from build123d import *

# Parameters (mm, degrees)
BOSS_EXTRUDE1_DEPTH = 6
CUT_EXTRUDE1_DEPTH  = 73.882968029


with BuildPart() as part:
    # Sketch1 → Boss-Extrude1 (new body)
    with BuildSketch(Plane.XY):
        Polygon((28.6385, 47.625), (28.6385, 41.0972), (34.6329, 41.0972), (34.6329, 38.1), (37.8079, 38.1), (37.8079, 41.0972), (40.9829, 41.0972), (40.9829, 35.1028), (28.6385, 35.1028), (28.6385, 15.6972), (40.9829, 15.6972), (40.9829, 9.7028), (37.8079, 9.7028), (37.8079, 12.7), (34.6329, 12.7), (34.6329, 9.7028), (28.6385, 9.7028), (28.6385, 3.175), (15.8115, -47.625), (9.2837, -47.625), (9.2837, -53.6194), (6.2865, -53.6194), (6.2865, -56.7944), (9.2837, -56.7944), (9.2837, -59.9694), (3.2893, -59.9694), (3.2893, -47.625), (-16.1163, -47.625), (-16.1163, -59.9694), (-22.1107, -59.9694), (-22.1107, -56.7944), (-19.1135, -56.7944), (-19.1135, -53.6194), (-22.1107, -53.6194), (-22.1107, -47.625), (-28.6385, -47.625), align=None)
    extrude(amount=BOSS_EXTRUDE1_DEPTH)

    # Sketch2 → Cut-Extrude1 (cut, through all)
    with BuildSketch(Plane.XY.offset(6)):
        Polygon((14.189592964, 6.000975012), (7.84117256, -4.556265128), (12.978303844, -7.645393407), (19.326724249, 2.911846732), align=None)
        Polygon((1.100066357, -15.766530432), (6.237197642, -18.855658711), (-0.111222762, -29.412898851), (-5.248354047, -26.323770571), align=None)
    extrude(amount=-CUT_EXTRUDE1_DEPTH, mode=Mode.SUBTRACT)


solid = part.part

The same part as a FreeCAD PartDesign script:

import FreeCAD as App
import Part
import Sketcher
Q = App.Units.Quantity

doc = App.newDocument("Part")
body = doc.addObject("PartDesign::Body", "Body")

# Sketch on XY plane
sketch1 = body.newObject("Sketcher::SketchObject", "Sketch")
sketch1.AttachmentSupport = (doc.getObject("XY_Plane"), [""])
sketch1.MapMode = "FlatFace"
sketch1.addGeometry([
    Part.LineSegment(App.Vector(28.6, 41.1, 0), App.Vector(28.6, 47.6, 0)),  # 0
    Part.LineSegment(App.Vector(28.6, 47.6, 0), App.Vector(-28.6, -47.6, 0)),  # 1
    Part.LineSegment(App.Vector(-28.6, -47.6, 0), App.Vector(-22.1, -47.6, 0)),  # 2
    Part.LineSegment(App.Vector(-22.1, -47.6, 0), App.Vector(-22.1, -53.6, 0)),  # 3
    Part.LineSegment(App.Vector(-22.1, -53.6, 0), App.Vector(-19.1, -53.6, 0)),  # 4
    Part.LineSegment(App.Vector(-19.1, -53.6, 0), App.Vector(-19.1, -56.8, 0)),  # 5
    Part.LineSegment(App.Vector(-19.1, -56.8, 0), App.Vector(-22.1, -56.8, 0)),  # 6
    Part.LineSegment(App.Vector(-22.1, -56.8, 0), App.Vector(-22.1, -60, 0)),  # 7
    Part.LineSegment(App.Vector(-22.1, -60, 0), App.Vector(-16.1, -60, 0)),  # 8
    Part.LineSegment(App.Vector(-16.1, -60, 0), App.Vector(-16.1, -47.6, 0)),  # 9
    Part.LineSegment(App.Vector(-16.1, -47.6, 0), App.Vector(3.3, -47.6, 0)),  # 10
    Part.LineSegment(App.Vector(3.3, -47.6, 0), App.Vector(3.3, -60, 0)),  # 11
    Part.LineSegment(App.Vector(3.3, -60, 0), App.Vector(9.3, -60, 0)),  # 12
    Part.LineSegment(App.Vector(9.3, -60, 0), App.Vector(9.3, -56.8, 0)),  # 13
    Part.LineSegment(App.Vector(9.3, -56.8, 0), App.Vector(6.3, -56.8, 0)),  # 14
    Part.LineSegment(App.Vector(6.3, -56.8, 0), App.Vector(6.3, -53.6, 0)),  # 15
    Part.LineSegment(App.Vector(6.3, -53.6, 0), App.Vector(9.3, -53.6, 0)),  # 16
    Part.LineSegment(App.Vector(9.3, -53.6, 0), App.Vector(9.3, -47.6, 0)),  # 17
    Part.LineSegment(App.Vector(9.3, -47.6, 0), App.Vector(15.8, -47.6, 0)),  # 18
    Part.LineSegment(App.Vector(15.8, -47.6, 0), App.Vector(28.6, 3.2, 0)),  # 19
    Part.LineSegment(App.Vector(28.6, 3.2, 0), App.Vector(28.6, 9.7, 0)),  # 20
    Part.LineSegment(App.Vector(28.6, 9.7, 0), App.Vector(34.6, 9.7, 0)),  # 21
    Part.LineSegment(App.Vector(34.6, 9.7, 0), App.Vector(34.6, 12.7, 0)),  # 22
    Part.LineSegment(App.Vector(34.6, 12.7, 0), App.Vector(37.8, 12.7, 0)),  # 23
    Part.LineSegment(App.Vector(37.8, 12.7, 0), App.Vector(37.8, 9.7, 0)),  # 24
    Part.LineSegment(App.Vector(37.8, 9.7, 0), App.Vector(41, 9.7, 0)),  # 25
    Part.LineSegment(App.Vector(41, 9.7, 0), App.Vector(41, 15.7, 0)),  # 26
    Part.LineSegment(App.Vector(41, 15.7, 0), App.Vector(28.6, 15.7, 0)),  # 27
    Part.LineSegment(App.Vector(28.6, 15.7, 0), App.Vector(28.6, 35.1, 0)),  # 28
    Part.LineSegment(App.Vector(28.6, 35.1, 0), App.Vector(41, 35.1, 0)),  # 29
    Part.LineSegment(App.Vector(41, 35.1, 0), App.Vector(41, 41.1, 0)),  # 30
    Part.LineSegment(App.Vector(41, 41.1, 0), App.Vector(37.8, 41.1, 0)),  # 31
    Part.LineSegment(App.Vector(37.8, 41.1, 0), App.Vector(37.8, 38.1, 0)),  # 32
    Part.LineSegment(App.Vector(37.8, 38.1, 0), App.Vector(34.6, 38.1, 0)),  # 33
    Part.LineSegment(App.Vector(34.6, 38.1, 0), App.Vector(34.6, 41.1, 0)),  # 34
    Part.LineSegment(App.Vector(34.6, 41.1, 0), App.Vector(28.6, 41.1, 0)),  # 35
], False)
sketch1.addConstraint([
    Sketcher.Constraint("Coincident", 0, 2, 1, 1),
    Sketcher.Constraint("Coincident", 1, 2, 2, 1),
    Sketcher.Constraint("Coincident", 2, 2, 3, 1),
    Sketcher.Constraint("Coincident", 3, 2, 4, 1),
    Sketcher.Constraint("Coincident", 4, 2, 5, 1),
    Sketcher.Constraint("Coincident", 5, 2, 6, 1),
    Sketcher.Constraint("Coincident", 6, 2, 7, 1),
    Sketcher.Constraint("Coincident", 7, 2, 8, 1),
    Sketcher.Constraint("Coincident", 8, 2, 9, 1),
    Sketcher.Constraint("Coincident", 9, 2, 10, 1),
    Sketcher.Constraint("Coincident", 10, 2, 11, 1),
    Sketcher.Constraint("Coincident", 11, 2, 12, 1),
    Sketcher.Constraint("Coincident", 12, 2, 13, 1),
    Sketcher.Constraint("Coincident", 13, 2, 14, 1),
    Sketcher.Constraint("Coincident", 14, 2, 15, 1),
    Sketcher.Constraint("Coincident", 15, 2, 16, 1),
    Sketcher.Constraint("Coincident", 16, 2, 17, 1),
    Sketcher.Constraint("Coincident", 17, 2, 18, 1),
    Sketcher.Constraint("Coincident", 18, 2, 19, 1),
    Sketcher.Constraint("Coincident", 19, 2, 20, 1),
    Sketcher.Constraint("Coincident", 20, 2, 21, 1),
    Sketcher.Constraint("Coincident", 21, 2, 22, 1),
    Sketcher.Constraint("Coincident", 22, 2, 23, 1),
    Sketcher.Constraint("Coincident", 23, 2, 24, 1),
    Sketcher.Constraint("Coincident", 24, 2, 25, 1),
    Sketcher.Constraint("Coincident", 25, 2, 26, 1),
    Sketcher.Constraint("Coincident", 26, 2, 27, 1),
    Sketcher.Constraint("Coincident", 27, 2, 28, 1),
    Sketcher.Constraint("Coincident", 28, 2, 29, 1),
    Sketcher.Constraint("Coincident", 29, 2, 30, 1),
    Sketcher.Constraint("Coincident", 30, 2, 31, 1),
    Sketcher.Constraint("Coincident", 31, 2, 32, 1),
    Sketcher.Constraint("Coincident", 32, 2, 33, 1),
    Sketcher.Constraint("Coincident", 33, 2, 34, 1),
    Sketcher.Constraint("Coincident", 34, 2, 35, 1),
    Sketcher.Constraint("Coincident", 35, 2, 0, 1),
    Sketcher.Constraint("Vertical", 0),
    Sketcher.Constraint("Horizontal", 2),
    Sketcher.Constraint("Vertical", 3),
    Sketcher.Constraint("Horizontal", 4),
    Sketcher.Constraint("Vertical", 5),
    Sketcher.Constraint("Horizontal", 6),
    Sketcher.Constraint("Vertical", 7),
    Sketcher.Constraint("Horizontal", 8),
    Sketcher.Constraint("Vertical", 9),
    Sketcher.Constraint("Horizontal", 10),
    Sketcher.Constraint("Vertical", 11),
    Sketcher.Constraint("Horizontal", 12),
    Sketcher.Constraint("Vertical", 13),
    Sketcher.Constraint("Horizontal", 14),
    Sketcher.Constraint("Vertical", 15),
    Sketcher.Constraint("Horizontal", 16),
    Sketcher.Constraint("Vertical", 17),
    Sketcher.Constraint("Horizontal", 18),
    Sketcher.Constraint("Vertical", 20),
    Sketcher.Constraint("Horizontal", 21),
    Sketcher.Constraint("Vertical", 22),
    Sketcher.Constraint("Horizontal", 23),
    Sketcher.Constraint("Vertical", 24),
    Sketcher.Constraint("Horizontal", 25),
    Sketcher.Constraint("Vertical", 26),
    Sketcher.Constraint("Horizontal", 27),
    Sketcher.Constraint("Vertical", 28),
    Sketcher.Constraint("Horizontal", 29),
    Sketcher.Constraint("Vertical", 30),
    Sketcher.Constraint("Horizontal", 31),
    Sketcher.Constraint("Vertical", 32),
    Sketcher.Constraint("Horizontal", 33),
    Sketcher.Constraint("Vertical", 34),
    Sketcher.Constraint("Horizontal", 35),
    Sketcher.Constraint("Symmetric", 0, 2, 1, 2, -1, 1),
    Sketcher.Constraint("Horizontal", 2, 2, 9, 2),
    Sketcher.Constraint("Horizontal", 8, 2, 11, 2),
    Sketcher.Constraint("Horizontal", 6, 2, 13, 2),
    Sketcher.Constraint("Horizontal", 4, 2, 15, 2),
    Sketcher.Constraint("Horizontal", 10, 2, 17, 2),
    Sketcher.Constraint("Horizontal", 21, 2, 24, 2),
    Sketcher.Constraint("Horizontal", 31, 2, 34, 2),
    Sketcher.Constraint("Vertical", 3, 2, 6, 2),
    Sketcher.Constraint("Vertical", 13, 2, 16, 2),
    Sketcher.Constraint("Vertical", 0, 2, 19, 2),
    Sketcher.Constraint("Vertical", 20, 2, 27, 2),
    Sketcher.Constraint("Vertical", 26, 2, 29, 2),
    Sketcher.Constraint("Vertical", 24, 2, 31, 2),
    Sketcher.Constraint("Vertical", 22, 2, 33, 2),
    Sketcher.Constraint("Equal", 8, 12),
    Sketcher.Constraint("Equal", 6, 14),
    Sketcher.Constraint("Equal", 2, 18),
    Sketcher.Constraint("Equal", 12, 21),
    Sketcher.Constraint("Equal", 23, 25),
    Sketcher.Constraint("Equal", 18, 0),
    Sketcher.Constraint("Equal", 35, 3),
    Sketcher.Constraint("Equal", 33, 5),
    Sketcher.Constraint("Equal", 5, 7),
    Sketcher.Constraint("Equal", 0, 20),
    Sketcher.Constraint("Equal", 16, 22),
    Sketcher.Constraint("Equal", 17, 26),
    Sketcher.Constraint("Equal", 10, 28),
    Sketcher.Constraint("Equal", 26, 30),
    Sketcher.Constraint("Equal", 24, 32),
    Sketcher.Constraint("DistanceX", 2, 2, 10, 2, Q("1 in")),
    Sketcher.Constraint("DistanceY", 18, 2, 19, 2, Q("2 in")),
    Sketcher.Constraint("DistanceY", -1, 1, 22, 2, Q("0.5 in")),
    Sketcher.Constraint("DistanceX", 2, 1, 2, 2, Q("0.257 in")),
    Sketcher.Constraint("DistanceX", 4, 1, 4, 2, Q("0.118 in")),
    Sketcher.Constraint("DistanceX", 23, 1, 23, 2, Q("0.125 in")),
    Sketcher.Constraint("DistanceX", 4, 2, 0, 2, Q("1.88 in")),
])
pad1 = body.newObject("PartDesign::Pad", "Pad")
pad1.Profile = sketch1
pad1.Length = 6

# Sketch on XY plane
sketch2 = body.newObject("Sketcher::SketchObject", "Sketch001")
sketch2.AttachmentSupport = (doc.getObject("XY_Plane"), [""])
sketch2.MapMode = "FlatFace"
sketch2.AttachmentOffset = App.Placement(App.Vector(0, 0, 6), App.Rotation())
sketch2.addGeometry([
    Part.LineSegment(App.Vector(14, 6, 0), App.Vector(8, -5, 0)),  # 0
    Part.LineSegment(App.Vector(8, -5, 0), App.Vector(13, -8, 0)),  # 1
    Part.LineSegment(App.Vector(13, -8, 0), App.Vector(19, 3, 0)),  # 2
    Part.LineSegment(App.Vector(19, 3, 0), App.Vector(14, 6, 0)),  # 3
    Part.LineSegment(App.Vector(6, -19, 0), App.Vector(1, -16, 0)),  # 4
    Part.LineSegment(App.Vector(1, -16, 0), App.Vector(-5, -26, 0)),  # 5
    Part.LineSegment(App.Vector(-5, -26, 0), App.Vector(0, -29, 0)),  # 6
    Part.LineSegment(App.Vector(0, -29, 0), App.Vector(6, -19, 0)),  # 7
], False)
sketch2.addConstraint([
    Sketcher.Constraint("Coincident", 0, 2, 1, 1),
    Sketcher.Constraint("Coincident", 1, 2, 2, 1),
    Sketcher.Constraint("Coincident", 2, 2, 3, 1),
    Sketcher.Constraint("Coincident", 3, 2, 0, 1),
    Sketcher.Constraint("Coincident", 4, 2, 5, 1),
    Sketcher.Constraint("Coincident", 5, 2, 6, 1),
    Sketcher.Constraint("Coincident", 6, 2, 7, 1),
    Sketcher.Constraint("Coincident", 7, 2, 4, 1),
    Sketcher.Constraint("Perpendicular", 0, 1),
    Sketcher.Constraint("Perpendicular", 1, 2),
    Sketcher.Constraint("Perpendicular", 2, 3),
    Sketcher.Constraint("Parallel", 3, 4),
    Sketcher.Constraint("Perpendicular", 4, 5),
    Sketcher.Constraint("Perpendicular", 5, 6),
    Sketcher.Constraint("Perpendicular", 6, 7),
    Sketcher.Constraint("Equal", 3, 4),
    Sketcher.Constraint("Equal", 2, 5),
    Sketcher.Constraint("Distance", 0, Q("0.485 in")),
    Sketcher.Constraint("Distance", 1, Q("0.236 in")),
    Sketcher.Constraint("DistanceY", 6, 2, -1, 1, Q("29.412899 mm")),
    Sketcher.Constraint("DistanceY", 4, 2, -1, 1, Q("15.76653 mm")),
    Sketcher.Constraint("DistanceX", 5, 2, 2, 2, Q("24.575078 mm")),
    Sketcher.Constraint("DistanceX", -1, 1, 0, 2, Q("7.841173 mm")),
    Sketcher.Constraint("DistanceY", 0, 2, -1, 1, Q("4.556265 mm")),
])
pocket1 = body.newObject("PartDesign::Pocket", "Pocket")
pocket1.Profile = sketch2
pocket1.Type = "ThroughAll"

doc.recompute()
